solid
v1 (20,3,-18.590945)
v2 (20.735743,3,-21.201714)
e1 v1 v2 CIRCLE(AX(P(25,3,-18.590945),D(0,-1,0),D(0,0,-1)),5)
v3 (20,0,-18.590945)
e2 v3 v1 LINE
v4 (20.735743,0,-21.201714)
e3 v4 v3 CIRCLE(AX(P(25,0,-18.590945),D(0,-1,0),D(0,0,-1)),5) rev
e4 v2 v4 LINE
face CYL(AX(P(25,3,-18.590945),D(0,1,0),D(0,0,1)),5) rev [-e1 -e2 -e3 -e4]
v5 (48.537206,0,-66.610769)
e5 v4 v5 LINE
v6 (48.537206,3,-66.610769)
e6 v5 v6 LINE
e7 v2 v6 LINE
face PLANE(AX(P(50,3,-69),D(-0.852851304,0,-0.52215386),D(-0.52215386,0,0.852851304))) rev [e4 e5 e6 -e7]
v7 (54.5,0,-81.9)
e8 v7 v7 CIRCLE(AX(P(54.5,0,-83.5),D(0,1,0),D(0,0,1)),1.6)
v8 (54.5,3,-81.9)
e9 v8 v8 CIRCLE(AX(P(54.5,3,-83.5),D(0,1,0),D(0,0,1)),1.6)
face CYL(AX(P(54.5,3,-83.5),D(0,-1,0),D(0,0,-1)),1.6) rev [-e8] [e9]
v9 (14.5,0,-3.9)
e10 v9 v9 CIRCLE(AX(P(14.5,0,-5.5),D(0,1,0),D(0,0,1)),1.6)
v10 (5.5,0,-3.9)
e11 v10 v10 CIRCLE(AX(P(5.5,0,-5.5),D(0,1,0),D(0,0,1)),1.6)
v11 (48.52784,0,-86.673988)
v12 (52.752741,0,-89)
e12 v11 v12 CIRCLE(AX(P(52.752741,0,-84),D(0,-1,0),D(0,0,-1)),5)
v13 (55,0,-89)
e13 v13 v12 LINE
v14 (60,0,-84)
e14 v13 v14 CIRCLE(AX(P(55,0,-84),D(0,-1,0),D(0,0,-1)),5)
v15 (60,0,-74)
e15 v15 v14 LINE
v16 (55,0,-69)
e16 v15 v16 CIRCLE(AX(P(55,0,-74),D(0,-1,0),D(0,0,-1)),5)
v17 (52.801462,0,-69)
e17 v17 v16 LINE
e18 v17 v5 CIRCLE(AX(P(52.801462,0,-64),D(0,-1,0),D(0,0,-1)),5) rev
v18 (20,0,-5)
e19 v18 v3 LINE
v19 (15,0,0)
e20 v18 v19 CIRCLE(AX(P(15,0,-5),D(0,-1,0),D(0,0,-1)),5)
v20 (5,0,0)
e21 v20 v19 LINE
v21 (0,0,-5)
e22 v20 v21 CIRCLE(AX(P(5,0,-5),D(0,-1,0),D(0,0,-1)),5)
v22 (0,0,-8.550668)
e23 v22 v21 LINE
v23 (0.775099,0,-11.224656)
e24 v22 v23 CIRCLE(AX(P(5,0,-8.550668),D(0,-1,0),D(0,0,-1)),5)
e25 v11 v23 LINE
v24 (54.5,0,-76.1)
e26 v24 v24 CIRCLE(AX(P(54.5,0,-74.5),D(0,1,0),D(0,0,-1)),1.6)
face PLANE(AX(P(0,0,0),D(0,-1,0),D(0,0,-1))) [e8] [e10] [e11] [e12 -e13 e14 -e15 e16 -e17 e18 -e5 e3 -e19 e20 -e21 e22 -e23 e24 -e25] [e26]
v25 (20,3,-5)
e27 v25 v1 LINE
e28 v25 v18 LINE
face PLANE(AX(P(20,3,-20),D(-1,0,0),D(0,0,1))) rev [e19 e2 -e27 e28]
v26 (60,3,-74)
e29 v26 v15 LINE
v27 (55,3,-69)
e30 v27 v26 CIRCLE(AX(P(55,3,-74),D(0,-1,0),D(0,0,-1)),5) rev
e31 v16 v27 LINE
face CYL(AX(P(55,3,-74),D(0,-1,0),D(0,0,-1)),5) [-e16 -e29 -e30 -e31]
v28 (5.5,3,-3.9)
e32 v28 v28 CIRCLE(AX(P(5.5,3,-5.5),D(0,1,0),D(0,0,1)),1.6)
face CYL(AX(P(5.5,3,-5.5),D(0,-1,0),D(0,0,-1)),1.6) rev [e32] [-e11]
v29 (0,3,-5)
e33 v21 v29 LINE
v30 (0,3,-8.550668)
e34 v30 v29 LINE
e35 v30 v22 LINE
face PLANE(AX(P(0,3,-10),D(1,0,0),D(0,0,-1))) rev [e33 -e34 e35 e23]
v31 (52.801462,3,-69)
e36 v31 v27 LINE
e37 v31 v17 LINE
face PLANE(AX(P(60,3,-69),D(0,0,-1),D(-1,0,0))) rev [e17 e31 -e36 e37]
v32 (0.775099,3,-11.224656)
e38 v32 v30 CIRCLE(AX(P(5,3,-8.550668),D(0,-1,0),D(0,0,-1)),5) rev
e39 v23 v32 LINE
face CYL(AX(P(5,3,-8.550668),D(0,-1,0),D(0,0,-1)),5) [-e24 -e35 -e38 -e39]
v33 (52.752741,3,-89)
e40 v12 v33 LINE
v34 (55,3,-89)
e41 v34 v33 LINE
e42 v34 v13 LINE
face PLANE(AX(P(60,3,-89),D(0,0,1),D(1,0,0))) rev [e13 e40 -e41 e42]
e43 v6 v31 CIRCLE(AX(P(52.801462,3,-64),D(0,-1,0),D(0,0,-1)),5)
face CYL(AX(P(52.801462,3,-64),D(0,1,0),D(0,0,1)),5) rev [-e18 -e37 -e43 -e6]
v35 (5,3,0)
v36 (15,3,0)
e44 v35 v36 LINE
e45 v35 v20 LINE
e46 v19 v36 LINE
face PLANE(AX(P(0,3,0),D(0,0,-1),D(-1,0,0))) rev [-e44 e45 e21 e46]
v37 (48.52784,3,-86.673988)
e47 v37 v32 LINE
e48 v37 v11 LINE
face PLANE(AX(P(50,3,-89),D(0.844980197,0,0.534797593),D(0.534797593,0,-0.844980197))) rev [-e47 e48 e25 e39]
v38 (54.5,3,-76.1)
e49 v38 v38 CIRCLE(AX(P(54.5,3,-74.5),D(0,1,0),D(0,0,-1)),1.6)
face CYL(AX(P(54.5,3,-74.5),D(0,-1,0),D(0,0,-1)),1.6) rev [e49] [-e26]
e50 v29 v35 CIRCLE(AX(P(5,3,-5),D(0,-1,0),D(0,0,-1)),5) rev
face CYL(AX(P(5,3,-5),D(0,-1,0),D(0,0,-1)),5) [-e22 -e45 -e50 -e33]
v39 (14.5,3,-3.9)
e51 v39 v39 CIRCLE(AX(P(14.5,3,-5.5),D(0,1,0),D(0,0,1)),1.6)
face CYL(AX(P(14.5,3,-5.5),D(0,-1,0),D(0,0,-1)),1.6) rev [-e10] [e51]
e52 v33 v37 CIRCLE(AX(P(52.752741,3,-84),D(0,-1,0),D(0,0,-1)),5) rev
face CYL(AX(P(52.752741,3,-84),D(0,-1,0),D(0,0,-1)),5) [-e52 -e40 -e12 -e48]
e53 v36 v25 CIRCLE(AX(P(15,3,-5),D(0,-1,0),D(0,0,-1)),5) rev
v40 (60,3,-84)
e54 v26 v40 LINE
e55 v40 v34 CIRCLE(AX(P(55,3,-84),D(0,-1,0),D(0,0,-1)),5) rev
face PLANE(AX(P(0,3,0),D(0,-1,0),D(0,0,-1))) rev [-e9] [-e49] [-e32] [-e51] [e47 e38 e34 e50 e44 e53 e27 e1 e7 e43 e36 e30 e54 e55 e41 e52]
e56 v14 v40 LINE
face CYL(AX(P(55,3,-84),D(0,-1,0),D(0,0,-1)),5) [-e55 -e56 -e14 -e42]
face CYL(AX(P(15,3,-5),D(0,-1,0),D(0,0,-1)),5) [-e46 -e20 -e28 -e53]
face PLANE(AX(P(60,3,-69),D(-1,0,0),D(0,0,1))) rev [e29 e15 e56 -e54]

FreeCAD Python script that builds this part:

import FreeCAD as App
import Part
import Sketcher

V = App.Vector


def edges_at(feature, points):
    """Names of the edges that pass closest to the given points."""
    edges = feature.Shape.Edges
    near = lambda p: min(range(len(edges)), key=lambda i: edges[i].distToShape(Part.Vertex(*p))[0])
    return sorted({f"Edge{near(p) + 1}" for p in points})


def add_polygon(sketch, points):
    """Adds a closed chain of lines whose ends are joined by coincident constraints."""
    first, n = sketch.GeometryCount, len(points)
    for a, b in zip(points, points[1:] + points[:1]):
        sketch.addGeometry(Part.LineSegment(App.Vector(*a, 0), App.Vector(*b, 0)), False)
    for i in range(n):
        sketch.addConstraint(Sketcher.Constraint("Coincident", first + i, 2, first + (i + 1) % n, 1))

doc = App.newDocument("Part")
params = doc.addObject("Spreadsheet::Sheet", "Params")
for row, (alias, value) in enumerate([
    ("sketch1_diameter", "3.2 mm"),
    ("sketch1_width", "20 mm"),
    ("sketch1_width2", "10 mm"),
    ("pad1_length", "3 mm"),
    ("fillet_radius", "5 mm"),
], start=1):
    params.set(f"A{row}", alias)
    params.set(f"B{row}", "=" + value)
    params.setAlias(f"B{row}", alias)

body = doc.addObject("PartDesign::Body", "Body")

sketch1 = doc.addObject("Sketcher::SketchObject", "Sketch")
body.addObject(sketch1)
sketch1.AttachmentSupport = (doc.XZ_Plane, [""])
sketch1.MapMode = "FlatFace"
add_polygon(sketch1, [(50, -89), (0, -10), (0, 0), (20, 0), (20, -20), (50, -69), (60, -69), (60, -89)])
sketch1.addGeometry(Part.Circle(V(5.5, -5.5, 0), V(0, 0, 1), 1.6), False)
sketch1.addGeometry(Part.Circle(V(14.5, -5.5, 0), V(0, 0, 1), 1.6), False)
sketch1.addGeometry(Part.Circle(V(54.5, -74.5, 0), V(0, 0, 1), 1.6), False)
sketch1.addGeometry(Part.Circle(V(54.5, -83.5, 0), V(0, 0, 1), 1.6), False)
sketch1.addConstraint([
    Sketcher.Constraint("Vertical", 1),
    Sketcher.Constraint("Horizontal", 2),
    Sketcher.Constraint("Vertical", 3),
    Sketcher.Constraint("Horizontal", 5),
    Sketcher.Constraint("Vertical", 6),
    Sketcher.Constraint("Horizontal", 7),
    Sketcher.Constraint("Coincident", 1, 2, -1, 1),
    Sketcher.Constraint("Equal", 8, 9),
    Sketcher.Constraint("Equal", 9, 10),
    Sketcher.Constraint("Equal", 10, 11),
    Sketcher.Constraint("Horizontal", 8, 3, 9, 3),
    Sketcher.Constraint("Vertical", 10, 3, 11, 3),
    Sketcher.Constraint("Vertical", 4, 2, 7, 2),
    Sketcher.Constraint("Equal", 7, 1),
    Sketcher.Constraint("Equal", 2, 3),
    Sketcher.Constraint("Equal", 3, 6),
    Sketcher.Constraint("Diameter", 8, 3.2),
    Sketcher.Constraint("DistanceX", 2, 1, 2, 2, 20.0),
    Sketcher.Constraint("DistanceX", 5, 1, 5, 2, 10.0),
    Sketcher.Constraint("DistanceX", -1, 1, 4, 2, 50.0),
    Sketcher.Constraint("DistanceY", 4, 2, -1, 1, 69.0),
    Sketcher.Constraint("DistanceX", 8, 3, 9, 3, 9.0),
    Sketcher.Constraint("DistanceX", 9, 3, 10, 3, 40.0),
    Sketcher.Constraint("DistanceY", 10, 3, 9, 3, 69.0),
    Sketcher.Constraint("DistanceY", 11, 3, 10, 3, 9.0),
    Sketcher.Constraint("DistanceX", -1, 1, 8, 3, 5.5),
    Sketcher.Constraint("DistanceY", 8, 3, -1, 1, 5.5),
])
sketch1.setExpression("Constraints[24]", "Params.sketch1_diameter")
sketch1.setExpression("Constraints[25]", "Params.sketch1_width")
sketch1.setExpression("Constraints[26]", "Params.sketch1_width2")
pad1 = doc.addObject("PartDesign::Pad", "Pad")
body.addObject(pad1)
pad1.Profile = sketch1
pad1.setExpression("Length", "Params.pad1_length")
pad1.Reversed = True
doc.recompute()

fillet = doc.addObject("PartDesign::Fillet", "Fillet")
body.addObject(fillet)
fillet.Base = (pad1, edges_at(pad1, [
    (0, 1.5, 0),
    (0, 1.5, -10),
    (50, 1.5, -89),
    (60, 1.5, -89),
    (60, 1.5, -69),
    (50, 1.5, -69),
    (20, 1.5, -20),
    (20, 1.5, 0),
]))
fillet.setExpression("Radius", "Params.fillet_radius")

doc.recompute()
